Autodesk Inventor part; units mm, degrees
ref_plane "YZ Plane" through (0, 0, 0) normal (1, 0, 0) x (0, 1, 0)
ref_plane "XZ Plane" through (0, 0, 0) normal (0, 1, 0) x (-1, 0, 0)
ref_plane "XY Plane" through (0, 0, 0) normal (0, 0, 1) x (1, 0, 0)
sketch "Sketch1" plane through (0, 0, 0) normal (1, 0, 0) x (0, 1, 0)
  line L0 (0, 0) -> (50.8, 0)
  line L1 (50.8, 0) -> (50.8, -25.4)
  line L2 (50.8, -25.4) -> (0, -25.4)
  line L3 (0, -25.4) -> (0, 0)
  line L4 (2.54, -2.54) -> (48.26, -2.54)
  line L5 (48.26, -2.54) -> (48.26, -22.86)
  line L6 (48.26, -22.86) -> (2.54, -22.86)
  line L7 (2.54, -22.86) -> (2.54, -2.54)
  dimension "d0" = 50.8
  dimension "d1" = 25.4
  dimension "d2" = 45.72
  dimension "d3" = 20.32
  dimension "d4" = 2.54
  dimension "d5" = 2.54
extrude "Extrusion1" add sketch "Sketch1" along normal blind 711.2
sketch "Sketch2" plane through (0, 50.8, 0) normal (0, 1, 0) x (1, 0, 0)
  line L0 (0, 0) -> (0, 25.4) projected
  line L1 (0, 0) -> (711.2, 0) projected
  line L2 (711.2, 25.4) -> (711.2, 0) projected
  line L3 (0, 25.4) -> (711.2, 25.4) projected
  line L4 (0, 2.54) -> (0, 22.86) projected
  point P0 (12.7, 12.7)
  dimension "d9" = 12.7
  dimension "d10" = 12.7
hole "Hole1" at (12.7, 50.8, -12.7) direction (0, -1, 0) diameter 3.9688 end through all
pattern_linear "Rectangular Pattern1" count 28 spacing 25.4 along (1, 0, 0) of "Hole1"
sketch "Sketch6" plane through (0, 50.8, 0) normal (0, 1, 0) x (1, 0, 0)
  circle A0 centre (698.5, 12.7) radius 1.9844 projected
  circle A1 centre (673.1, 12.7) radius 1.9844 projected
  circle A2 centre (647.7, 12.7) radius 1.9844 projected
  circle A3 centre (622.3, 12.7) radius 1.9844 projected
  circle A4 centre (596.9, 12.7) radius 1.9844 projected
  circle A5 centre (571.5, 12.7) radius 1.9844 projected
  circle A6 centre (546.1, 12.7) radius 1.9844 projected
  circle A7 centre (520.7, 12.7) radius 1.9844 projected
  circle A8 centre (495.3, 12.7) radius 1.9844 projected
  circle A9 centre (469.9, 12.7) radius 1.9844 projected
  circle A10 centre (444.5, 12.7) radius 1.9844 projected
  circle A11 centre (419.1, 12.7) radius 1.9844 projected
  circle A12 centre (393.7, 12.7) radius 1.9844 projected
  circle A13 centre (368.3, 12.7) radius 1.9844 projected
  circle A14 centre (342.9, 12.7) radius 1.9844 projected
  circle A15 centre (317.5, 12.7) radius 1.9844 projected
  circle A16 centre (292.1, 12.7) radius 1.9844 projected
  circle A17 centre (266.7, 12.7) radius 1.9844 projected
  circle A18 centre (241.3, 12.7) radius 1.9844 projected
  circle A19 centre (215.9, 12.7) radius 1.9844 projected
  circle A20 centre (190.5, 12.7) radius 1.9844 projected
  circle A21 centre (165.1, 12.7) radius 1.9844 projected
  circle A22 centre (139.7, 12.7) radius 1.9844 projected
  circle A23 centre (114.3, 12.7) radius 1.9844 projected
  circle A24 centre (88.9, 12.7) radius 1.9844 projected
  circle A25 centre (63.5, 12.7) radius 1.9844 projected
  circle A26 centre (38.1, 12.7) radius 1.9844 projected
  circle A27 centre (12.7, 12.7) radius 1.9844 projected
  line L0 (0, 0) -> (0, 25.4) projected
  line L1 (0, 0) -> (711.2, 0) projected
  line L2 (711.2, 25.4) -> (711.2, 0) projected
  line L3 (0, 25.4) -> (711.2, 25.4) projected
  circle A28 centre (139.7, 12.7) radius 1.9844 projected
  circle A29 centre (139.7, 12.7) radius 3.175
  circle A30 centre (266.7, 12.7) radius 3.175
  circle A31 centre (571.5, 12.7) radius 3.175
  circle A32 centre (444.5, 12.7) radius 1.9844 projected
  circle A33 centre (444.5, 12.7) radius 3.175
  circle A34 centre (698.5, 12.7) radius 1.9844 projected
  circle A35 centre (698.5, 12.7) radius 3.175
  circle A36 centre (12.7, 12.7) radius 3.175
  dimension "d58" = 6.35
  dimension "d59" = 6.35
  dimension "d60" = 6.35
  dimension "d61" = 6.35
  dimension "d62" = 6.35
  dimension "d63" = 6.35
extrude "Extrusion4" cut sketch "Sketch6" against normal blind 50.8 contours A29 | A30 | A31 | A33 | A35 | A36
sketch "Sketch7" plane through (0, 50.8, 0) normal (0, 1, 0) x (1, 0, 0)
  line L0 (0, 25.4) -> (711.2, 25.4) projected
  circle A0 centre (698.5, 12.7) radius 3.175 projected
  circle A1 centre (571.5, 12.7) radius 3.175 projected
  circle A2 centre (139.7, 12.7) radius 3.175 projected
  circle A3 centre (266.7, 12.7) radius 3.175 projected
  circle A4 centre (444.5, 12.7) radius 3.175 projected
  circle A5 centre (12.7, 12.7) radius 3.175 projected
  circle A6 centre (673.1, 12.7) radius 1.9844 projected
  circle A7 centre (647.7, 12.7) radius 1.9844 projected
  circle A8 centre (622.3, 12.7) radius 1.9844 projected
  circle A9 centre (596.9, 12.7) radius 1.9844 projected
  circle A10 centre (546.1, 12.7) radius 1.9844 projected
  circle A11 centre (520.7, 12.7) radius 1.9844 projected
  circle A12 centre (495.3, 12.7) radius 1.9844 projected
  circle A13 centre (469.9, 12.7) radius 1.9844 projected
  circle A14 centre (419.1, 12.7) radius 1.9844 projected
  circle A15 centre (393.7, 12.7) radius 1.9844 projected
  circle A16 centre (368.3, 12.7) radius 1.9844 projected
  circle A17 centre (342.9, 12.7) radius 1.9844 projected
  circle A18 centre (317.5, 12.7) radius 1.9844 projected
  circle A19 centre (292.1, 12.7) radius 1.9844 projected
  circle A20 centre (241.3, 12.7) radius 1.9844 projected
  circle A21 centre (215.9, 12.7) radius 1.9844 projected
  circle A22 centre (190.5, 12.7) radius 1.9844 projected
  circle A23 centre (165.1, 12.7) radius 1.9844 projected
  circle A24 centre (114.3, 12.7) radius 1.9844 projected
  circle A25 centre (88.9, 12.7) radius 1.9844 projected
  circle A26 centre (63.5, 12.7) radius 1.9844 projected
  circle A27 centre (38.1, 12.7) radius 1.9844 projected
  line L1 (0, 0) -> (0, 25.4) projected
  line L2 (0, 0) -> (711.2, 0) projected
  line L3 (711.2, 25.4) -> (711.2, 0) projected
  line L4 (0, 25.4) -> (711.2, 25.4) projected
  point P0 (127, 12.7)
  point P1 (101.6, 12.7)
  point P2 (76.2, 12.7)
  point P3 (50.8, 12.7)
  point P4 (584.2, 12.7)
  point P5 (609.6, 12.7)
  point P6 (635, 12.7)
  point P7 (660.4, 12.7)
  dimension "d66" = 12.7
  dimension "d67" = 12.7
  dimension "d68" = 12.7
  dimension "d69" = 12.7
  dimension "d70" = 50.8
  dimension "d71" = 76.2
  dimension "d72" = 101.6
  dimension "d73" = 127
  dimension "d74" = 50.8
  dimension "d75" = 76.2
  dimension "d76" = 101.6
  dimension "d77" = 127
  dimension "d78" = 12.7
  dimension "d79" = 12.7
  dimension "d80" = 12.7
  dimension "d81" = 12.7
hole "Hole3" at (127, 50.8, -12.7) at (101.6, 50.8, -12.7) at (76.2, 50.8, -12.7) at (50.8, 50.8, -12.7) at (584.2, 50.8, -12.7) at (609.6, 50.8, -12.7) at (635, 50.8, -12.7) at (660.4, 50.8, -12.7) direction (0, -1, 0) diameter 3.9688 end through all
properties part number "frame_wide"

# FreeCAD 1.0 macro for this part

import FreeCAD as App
import Part
import Sketcher

V = App.Vector
Q = App.Units.Quantity

doc = App.newDocument("Part")
body = doc.addObject("PartDesign::Body", "Body")

sketch1 = body.newObject("Sketcher::SketchObject", "Sketch")
sketch1.AttachmentSupport = (doc.getObject("YZ_Plane"), [""])
sketch1.MapMode = "FlatFace"
sketch1.addGeometry(Part.LineSegment(V(50.8, 0, 0), V(0, 0, 0)), False)
sketch1.addGeometry(Part.LineSegment(V(0, 0, 0), V(0, -25.4, 0)), False)
sketch1.addGeometry(Part.LineSegment(V(0, -25.4, 0), V(50.8, -25.4, 0)), False)
sketch1.addGeometry(Part.LineSegment(V(50.8, -25.4, 0), V(50.8, 0, 0)), False)
sketch1.addGeometry(Part.LineSegment(V(2.54, -22.86, 0), V(2.54, -2.54, 0)), False)
sketch1.addGeometry(Part.LineSegment(V(2.54, -2.54, 0), V(48.26, -2.54, 0)), False)
sketch1.addGeometry(Part.LineSegment(V(48.26, -2.54, 0), V(48.26, -22.86, 0)), False)
sketch1.addGeometry(Part.LineSegment(V(48.26, -22.86, 0), V(2.54, -22.86, 0)), False)
sketch1.addConstraint(Sketcher.Constraint("Coincident", 0, 2, 1, 1))
sketch1.addConstraint(Sketcher.Constraint("Coincident", 1, 2, 2, 1))
sketch1.addConstraint(Sketcher.Constraint("Coincident", 2, 2, 3, 1))
sketch1.addConstraint(Sketcher.Constraint("Coincident", 3, 2, 0, 1))
sketch1.addConstraint(Sketcher.Constraint("Coincident", 4, 2, 5, 1))
sketch1.addConstraint(Sketcher.Constraint("Coincident", 5, 2, 6, 1))
sketch1.addConstraint(Sketcher.Constraint("Coincident", 6, 2, 7, 1))
sketch1.addConstraint(Sketcher.Constraint("Coincident", 7, 2, 4, 1))
sketch1.addConstraint(Sketcher.Constraint("Horizontal", 0))
sketch1.addConstraint(Sketcher.Constraint("Vertical", 1))
sketch1.addConstraint(Sketcher.Constraint("Horizontal", 2))
sketch1.addConstraint(Sketcher.Constraint("Vertical", 3))
sketch1.addConstraint(Sketcher.Constraint("Vertical", 4))
sketch1.addConstraint(Sketcher.Constraint("Horizontal", 5))
sketch1.addConstraint(Sketcher.Constraint("Vertical", 6))
sketch1.addConstraint(Sketcher.Constraint("Horizontal", 7))
sketch1.addConstraint(Sketcher.Constraint("Coincident", 0, 2, -1, 1))
sketch1.addConstraint(Sketcher.Constraint("DistanceX", 0, 2, 0, 1, Q("2 in")))
sketch1.addConstraint(Sketcher.Constraint("DistanceY", 1, 2, 1, 1, Q("1 in")))
sketch1.addConstraint(Sketcher.Constraint("DistanceX", 5, 1, 5, 2, Q("1.8 in")))
sketch1.addConstraint(Sketcher.Constraint("DistanceY", 4, 1, 4, 2, Q("0.8 in")))
sketch1.addConstraint(Sketcher.Constraint("DistanceX", -1, 1, 4, 2, Q("0.1 in")))
sketch1.addConstraint(Sketcher.Constraint("DistanceY", 4, 2, -1, 1, Q("0.1 in")))
pad1 = body.newObject("PartDesign::Pad", "Pad")
pad1.Profile = sketch1
pad1.Length = Q("28 in")

sketch2 = body.newObject("Sketcher::SketchObject", "Sketch001")
sketch2.AttachmentSupport = (doc.getObject("XZ_Plane"), [""])
sketch2.MapMode = "FlatFace"
sketch2.AttachmentOffset = App.Placement(V(0, 0, -2 * 25.4), App.Rotation())
sketch2.addGeometry(Part.Circle(V(12.7, -12.7, 0), V(0, 0, 1), 1.9844), False)
sketch2.addConstraint(Sketcher.Constraint("Diameter", 0, Q("0.156252 in")))
sketch2.addConstraint(Sketcher.Constraint("DistanceX", -1, 1, 0, 3, Q("0.5 in")))
sketch2.addConstraint(Sketcher.Constraint("DistanceY", 0, 3, -1, 1, Q("0.5 in")))
doc.recompute()
hole = body.newObject("PartDesign::Hole", "Hole")
hole.Profile = sketch2
hole.ThreadType = "None"
hole.Diameter = Q("0.156252 in")
hole.DepthType = "ThroughAll"
hole.Reversed = True
doc.recompute()

linearpattern = body.newObject("PartDesign::LinearPattern", "LinearPattern")
linearpattern.Originals = [hole]
linearpattern.Direction = (doc.getObject("X_Axis"), [""])
linearpattern.Mode = "offset"
linearpattern.Offset = Q("1 in")
linearpattern.Occurrences = 28
body.Tip = linearpattern

sketch3 = body.newObject("Sketcher::SketchObject", "Sketch002")
sketch3.AttachmentSupport = (doc.getObject("XZ_Plane"), [""])
sketch3.MapMode = "FlatFace"
sketch3.AttachmentOffset = App.Placement(V(0, 0, -2 * 25.4), App.Rotation())
sketch3.addGeometry(Part.Circle(V(139.7, -12.7, 0), V(0, 0, 1), 3.175), False)
sketch3.addGeometry(Part.Circle(V(139.7, -12.7, 0), V(0, 0, 1), 1.9844), False)
sketch3.addGeometry(Part.Circle(V(266.7, -12.7, 0), V(0, 0, 1), 3.175), False)
sketch3.addGeometry(Part.Circle(V(266.7, -12.7, 0), V(0, 0, 1), 1.9844), False)
sketch3.addGeometry(Part.Circle(V(571.5, -12.7, 0), V(0, 0, 1), 3.175), False)
sketch3.addGeometry(Part.Circle(V(571.5, -12.7, 0), V(0, 0, 1), 1.9844), False)
sketch3.addGeometry(Part.Circle(V(444.5, -12.7, 0), V(0, 0, 1), 3.175), False)
sketch3.addGeometry(Part.Circle(V(444.5, -12.7, 0), V(0, 0, 1), 1.9844), False)
sketch3.addGeometry(Part.Circle(V(698.5, -12.7, 0), V(0, 0, 1), 3.175), False)
sketch3.addGeometry(Part.Circle(V(698.5, -12.7, 0), V(0, 0, 1), 1.9844), False)
sketch3.addGeometry(Part.Circle(V(12.7, -12.7, 0), V(0, 0, 1), 3.175), False)
sketch3.addGeometry(Part.Circle(V(12.7, -12.7, 0), V(0, 0, 1), 1.9844), False)
sketch3.addConstraint(Sketcher.Constraint("Coincident", 1, 3, 0, 3))
sketch3.addConstraint(Sketcher.Constraint("Coincident", 3, 3, 2, 3))
sketch3.addConstraint(Sketcher.Constraint("Coincident", 5, 3, 4, 3))
sketch3.addConstraint(Sketcher.Constraint("Coincident", 7, 3, 6, 3))
sketch3.addConstraint(Sketcher.Constraint("Coincident", 9, 3, 8, 3))
sketch3.addConstraint(Sketcher.Constraint("Coincident", 11, 3, 10, 3))
sketch3.addConstraint(Sketcher.Constraint("Equal", 0, 2))
sketch3.addConstraint(Sketcher.Constraint("Equal", 1, 3))
sketch3.addConstraint(Sketcher.Constraint("Equal", 2, 4))
sketch3.addConstraint(Sketcher.Constraint("Equal", 3, 5))
sketch3.addConstraint(Sketcher.Constraint("Equal", 4, 6))
sketch3.addConstraint(Sketcher.Constraint("Equal", 5, 7))
sketch3.addConstraint(Sketcher.Constraint("Equal", 6, 8))
sketch3.addConstraint(Sketcher.Constraint("Equal", 7, 9))
sketch3.addConstraint(Sketcher.Constraint("Equal", 8, 10))
sketch3.addConstraint(Sketcher.Constraint("Equal", 9, 11))
sketch3.addConstraint(Sketcher.Constraint("Horizontal", 1, 3, 2, 3))
sketch3.addConstraint(Sketcher.Constraint("Horizontal", 3, 3, 4, 3))
sketch3.addConstraint(Sketcher.Constraint("Horizontal", 5, 3, 6, 3))
sketch3.addConstraint(Sketcher.Constraint("Horizontal", 7, 3, 8, 3))
sketch3.addConstraint(Sketcher.Constraint("Horizontal", 9, 3, 10, 3))
sketch3.addConstraint(Sketcher.Constraint("Diameter", 0, Q("0.25 in")))
sketch3.addConstraint(Sketcher.Constraint("Diameter", 1, Q("0.156252 in")))
sketch3.addConstraint(Sketcher.Constraint("DistanceX", 0, 3, 2, 3, Q("5 in")))
sketch3.addConstraint(Sketcher.Constraint("DistanceX", 2, 3, 4, 3, Q("12 in")))
sketch3.addConstraint(Sketcher.Constraint("DistanceX", 6, 3, 4, 3, Q("5 in")))
sketch3.addConstraint(Sketcher.Constraint("DistanceX", 4, 3, 8, 3, Q("5 in")))
sketch3.addConstraint(Sketcher.Constraint("DistanceX", 10, 3, 0, 3, Q("5 in")))
sketch3.addConstraint(Sketcher.Constraint("DistanceX", -1, 1, 0, 3, Q("5.5 in")))
sketch3.addConstraint(Sketcher.Constraint("DistanceY", 0, 3, -1, 1, Q("0.5 in")))
pocket1 = body.newObject("PartDesign::Pocket", "Pocket")
pocket1.Profile = sketch3
pocket1.Length = Q("2 in")
pocket1.Reversed = True

sketch4 = body.newObject("Sketcher::SketchObject", "Sketch003")
sketch4.AttachmentSupport = (doc.getObject("XZ_Plane"), [""])
sketch4.MapMode = "FlatFace"
sketch4.AttachmentOffset = App.Placement(V(0, 0, -2 * 25.4), App.Rotation())
sketch4.addGeometry(Part.Circle(V(127, -12.7, 0), V(0, 0, 1), 1.9844), False)
sketch4.addGeometry(Part.Circle(V(101.6, -12.7, 0), V(0, 0, 1), 1.9844), False)
sketch4.addGeometry(Part.Circle(V(76.2, -12.7, 0), V(0, 0, 1), 1.9844), False)
sketch4.addGeometry(Part.Circle(V(50.8, -12.7, 0), V(0, 0, 1), 1.9844), False)
sketch4.addGeometry(Part.Circle(V(584.2, -12.7, 0), V(0, 0, 1), 1.9844), False)
sketch4.addGeometry(Part.Circle(V(609.6, -12.7, 0), V(0, 0, 1), 1.9844), False)
sketch4.addGeometry(Part.Circle(V(635, -12.7, 0), V(0, 0, 1), 1.9844), False)
sketch4.addGeometry(Part.Circle(V(660.4, -12.7, 0), V(0, 0, 1), 1.9844), False)
sketch4.addConstraint(Sketcher.Constraint("Equal", 0, 1))
sketch4.addConstraint(Sketcher.Constraint("Equal", 1, 2))
sketch4.addConstraint(Sketcher.Constraint("Equal", 2, 3))
sketch4.addConstraint(Sketcher.Constraint("Equal", 3, 4))
sketch4.addConstraint(Sketcher.Constraint("Equal", 4, 5))
sketch4.addConstraint(Sketcher.Constraint("Equal", 5, 6))
sketch4.addConstraint(Sketcher.Constraint("Equal", 6, 7))
sketch4.addConstraint(Sketcher.Constraint("Horizontal", 0, 3, 1, 3))
sketch4.addConstraint(Sketcher.Constraint("Horizontal", 1, 3, 2, 3))
sketch4.addConstraint(Sketcher.Constraint("Horizontal", 2, 3, 3, 3))
sketch4.addConstraint(Sketcher.Constraint("Horizontal", 3, 3, 4, 3))
sketch4.addConstraint(Sketcher.Constraint("Horizontal", 4, 3, 5, 3))
sketch4.addConstraint(Sketcher.Constraint("Horizontal", 5, 3, 6, 3))
sketch4.addConstraint(Sketcher.Constraint("Horizontal", 6, 3, 7, 3))
sketch4.addConstraint(Sketcher.Constraint("Diameter", 0, Q("0.156252 in")))
sketch4.addConstraint(Sketcher.Constraint("DistanceX", -1, 1, 0, 3, Q("5 in")))
sketch4.addConstraint(Sketcher.Constraint("DistanceX", -1, 1, 1, 3, Q("4 in")))
sketch4.addConstraint(Sketcher.Constraint("DistanceX", -1, 1, 2, 3, Q("3 in")))
sketch4.addConstraint(Sketcher.Constraint("DistanceX", -1, 1, 3, 3, Q("2 in")))
sketch4.addConstraint(Sketcher.Constraint("DistanceX", -1, 1, 4, 3, Q("23 in")))
sketch4.addConstraint(Sketcher.Constraint("DistanceX", -1, 1, 5, 3, Q("24 in")))
sketch4.addConstraint(Sketcher.Constraint("DistanceX", -1, 1, 6, 3, Q("25 in")))
sketch4.addConstraint(Sketcher.Constraint("DistanceX", -1, 1, 7, 3, Q("26 in")))
sketch4.addConstraint(Sketcher.Constraint("DistanceY", 0, 3, -1, 1, Q("0.5 in")))
doc.recompute()
hole2 = body.newObject("PartDesign::Hole", "Hole001")
hole2.Profile = sketch4
hole2.ThreadType = "None"
hole2.Diameter = Q("0.156252 in")
hole2.DepthType = "ThroughAll"
hole2.Reversed = True

doc.recompute()
